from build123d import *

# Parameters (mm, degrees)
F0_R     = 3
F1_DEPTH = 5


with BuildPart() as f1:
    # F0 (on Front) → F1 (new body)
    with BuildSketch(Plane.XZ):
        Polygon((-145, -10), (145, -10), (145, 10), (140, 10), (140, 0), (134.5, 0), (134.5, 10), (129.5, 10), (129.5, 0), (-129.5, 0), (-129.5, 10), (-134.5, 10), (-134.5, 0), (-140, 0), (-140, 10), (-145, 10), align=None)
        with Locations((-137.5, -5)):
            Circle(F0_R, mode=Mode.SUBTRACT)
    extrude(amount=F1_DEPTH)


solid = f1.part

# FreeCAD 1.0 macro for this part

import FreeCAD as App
import Part
import Sketcher
Q = App.Units.Quantity

doc = App.newDocument("Part")
params = doc.addObject("Spreadsheet::Sheet", "Params")
for row, (alias, value) in enumerate([
    ("sketch1_diameter", "6 mm"),
    ("sketch1_width", "290 mm"),
    ("sketch1_width2", "5 mm"),
    ("sketch1_width3", "259 mm"),
    ("sketch1_height", "20 mm"),
    ("pad1_length", "5 mm"),
], start=1):
    params.set(f"A{row}", alias)
    params.set(f"B{row}", "=" + value)
    params.setAlias(f"B{row}", alias)

body = doc.addObject("PartDesign::Body", "Body")

sketch1 = body.newObject("Sketcher::SketchObject", "Sketch")
sketch1.AttachmentSupport = (doc.getObject("XZ_Plane"), [""])
sketch1.MapMode = "FlatFace"
sketch1.addGeometry([
    Part.LineSegment(App.Vector(-145, -10, 0), App.Vector(145, -10, 0)),
    Part.LineSegment(App.Vector(145, -10, 0), App.Vector(145, 10, 0)),
    Part.LineSegment(App.Vector(145, 10, 0), App.Vector(140, 10, 0)),
    Part.LineSegment(App.Vector(140, 10, 0), App.Vector(140, 0, 0)),
    Part.LineSegment(App.Vector(140, 0, 0), App.Vector(134.5, 0, 0)),
    Part.LineSegment(App.Vector(134.5, 0, 0), App.Vector(134.5, 10, 0)),
    Part.LineSegment(App.Vector(134.5, 10, 0), App.Vector(129.5, 10, 0)),
    Part.LineSegment(App.Vector(129.5, 10, 0), App.Vector(129.5, 0, 0)),
    Part.LineSegment(App.Vector(129.5, 0, 0), App.Vector(-129.5, 0, 0)),
    Part.LineSegment(App.Vector(-129.5, 0, 0), App.Vector(-129.5, 10, 0)),
    Part.LineSegment(App.Vector(-129.5, 10, 0), App.Vector(-134.5, 10, 0)),
    Part.LineSegment(App.Vector(-134.5, 10, 0), App.Vector(-134.5, 0, 0)),
    Part.LineSegment(App.Vector(-134.5, 0, 0), App.Vector(-140, 0, 0)),
    Part.LineSegment(App.Vector(-140, 0, 0), App.Vector(-140, 10, 0)),
    Part.LineSegment(App.Vector(-140, 10, 0), App.Vector(-145, 10, 0)),
    Part.LineSegment(App.Vector(-145, 10, 0), App.Vector(-145, -10, 0)),
    Part.Circle(App.Vector(-137.5, -5, 0), App.Vector(0, 0, 1), 3),
], False)
sketch1.addConstraint([
    Sketcher.Constraint("Coincident", 0, 2, 1, 1),
    Sketcher.Constraint("Coincident", 1, 2, 2, 1),
    Sketcher.Constraint("Coincident", 2, 2, 3, 1),
    Sketcher.Constraint("Coincident", 3, 2, 4, 1),
    Sketcher.Constraint("Coincident", 4, 2, 5, 1),
    Sketcher.Constraint("Coincident", 5, 2, 6, 1),
    Sketcher.Constraint("Coincident", 6, 2, 7, 1),
    Sketcher.Constraint("Coincident", 7, 2, 8, 1),
    Sketcher.Constraint("Coincident", 8, 2, 9, 1),
    Sketcher.Constraint("Coincident", 9, 2, 10, 1),
    Sketcher.Constraint("Coincident", 10, 2, 11, 1),
    Sketcher.Constraint("Coincident", 11, 2, 12, 1),
    Sketcher.Constraint("Coincident", 12, 2, 13, 1),
    Sketcher.Constraint("Coincident", 13, 2, 14, 1),
    Sketcher.Constraint("Coincident", 14, 2, 15, 1),
    Sketcher.Constraint("Coincident", 15, 2, 0, 1),
    Sketcher.Constraint("Horizontal", 0),
    Sketcher.Constraint("Vertical", 1),
    Sketcher.Constraint("Horizontal", 2),
    Sketcher.Constraint("Vertical", 3),
    Sketcher.Constraint("Horizontal", 4),
    Sketcher.Constraint("Vertical", 5),
    Sketcher.Constraint("Horizontal", 6),
    Sketcher.Constraint("Vertical", 7),
    Sketcher.Constraint("Horizontal", 8),
    Sketcher.Constraint("Vertical", 9),
    Sketcher.Constraint("Horizontal", 10),
    Sketcher.Constraint("Vertical", 11),
    Sketcher.Constraint("Horizontal", 12),
    Sketcher.Constraint("Vertical", 13),
    Sketcher.Constraint("Horizontal", 14),
    Sketcher.Constraint("Vertical", 15),
    Sketcher.Constraint("Symmetric", 7, 2, 8, 2, -1, 1),
    Sketcher.Constraint("Symmetric", 4, 2, 11, 2, -1, 1),
    Sketcher.Constraint("Symmetric", 0, 2, 14, 2, -1, 1),
    Sketcher.Constraint("Symmetric", 3, 2, 12, 2, -2),
    Sketcher.Constraint("Horizontal", 2, 2, 5, 2),
    Sketcher.Constraint("Horizontal", 6, 2, 9, 2),
    Sketcher.Constraint("Horizontal", 10, 2, 13, 2),
    Sketcher.Constraint("Equal", 2, 6),
    Sketcher.Constraint("Diameter", 16, Q("6 mm")),
    Sketcher.Constraint("DistanceX", 0, 1, 0, 2, Q("290 mm")),
    Sketcher.Constraint("DistanceX", 2, 2, 2, 1, Q("5 mm")),
    Sketcher.Constraint("DistanceX", 8, 2, 8, 1, Q("259 mm")),
    Sketcher.Constraint("DistanceY", 1, 1, 1, 2, Q("20 mm")),
    Sketcher.Constraint("DistanceY", 16, 3, -1, 1, Q("5 mm")),
    Sketcher.Constraint("DistanceX", 16, 3, 4, 2, Q("272 mm")),
])
sketch1.setExpression("Constraints[40]", "Params.sketch1_diameter")
sketch1.setExpression("Constraints[41]", "Params.sketch1_width")
sketch1.setExpression("Constraints[42]", "Params.sketch1_width2")
sketch1.setExpression("Constraints[43]", "Params.sketch1_width3")
sketch1.setExpression("Constraints[44]", "Params.sketch1_height")
pad1 = body.newObject("PartDesign::Pad", "Pad")
pad1.Profile = sketch1
pad1.setExpression("Length", "Params.pad1_length")

doc.recompute()
